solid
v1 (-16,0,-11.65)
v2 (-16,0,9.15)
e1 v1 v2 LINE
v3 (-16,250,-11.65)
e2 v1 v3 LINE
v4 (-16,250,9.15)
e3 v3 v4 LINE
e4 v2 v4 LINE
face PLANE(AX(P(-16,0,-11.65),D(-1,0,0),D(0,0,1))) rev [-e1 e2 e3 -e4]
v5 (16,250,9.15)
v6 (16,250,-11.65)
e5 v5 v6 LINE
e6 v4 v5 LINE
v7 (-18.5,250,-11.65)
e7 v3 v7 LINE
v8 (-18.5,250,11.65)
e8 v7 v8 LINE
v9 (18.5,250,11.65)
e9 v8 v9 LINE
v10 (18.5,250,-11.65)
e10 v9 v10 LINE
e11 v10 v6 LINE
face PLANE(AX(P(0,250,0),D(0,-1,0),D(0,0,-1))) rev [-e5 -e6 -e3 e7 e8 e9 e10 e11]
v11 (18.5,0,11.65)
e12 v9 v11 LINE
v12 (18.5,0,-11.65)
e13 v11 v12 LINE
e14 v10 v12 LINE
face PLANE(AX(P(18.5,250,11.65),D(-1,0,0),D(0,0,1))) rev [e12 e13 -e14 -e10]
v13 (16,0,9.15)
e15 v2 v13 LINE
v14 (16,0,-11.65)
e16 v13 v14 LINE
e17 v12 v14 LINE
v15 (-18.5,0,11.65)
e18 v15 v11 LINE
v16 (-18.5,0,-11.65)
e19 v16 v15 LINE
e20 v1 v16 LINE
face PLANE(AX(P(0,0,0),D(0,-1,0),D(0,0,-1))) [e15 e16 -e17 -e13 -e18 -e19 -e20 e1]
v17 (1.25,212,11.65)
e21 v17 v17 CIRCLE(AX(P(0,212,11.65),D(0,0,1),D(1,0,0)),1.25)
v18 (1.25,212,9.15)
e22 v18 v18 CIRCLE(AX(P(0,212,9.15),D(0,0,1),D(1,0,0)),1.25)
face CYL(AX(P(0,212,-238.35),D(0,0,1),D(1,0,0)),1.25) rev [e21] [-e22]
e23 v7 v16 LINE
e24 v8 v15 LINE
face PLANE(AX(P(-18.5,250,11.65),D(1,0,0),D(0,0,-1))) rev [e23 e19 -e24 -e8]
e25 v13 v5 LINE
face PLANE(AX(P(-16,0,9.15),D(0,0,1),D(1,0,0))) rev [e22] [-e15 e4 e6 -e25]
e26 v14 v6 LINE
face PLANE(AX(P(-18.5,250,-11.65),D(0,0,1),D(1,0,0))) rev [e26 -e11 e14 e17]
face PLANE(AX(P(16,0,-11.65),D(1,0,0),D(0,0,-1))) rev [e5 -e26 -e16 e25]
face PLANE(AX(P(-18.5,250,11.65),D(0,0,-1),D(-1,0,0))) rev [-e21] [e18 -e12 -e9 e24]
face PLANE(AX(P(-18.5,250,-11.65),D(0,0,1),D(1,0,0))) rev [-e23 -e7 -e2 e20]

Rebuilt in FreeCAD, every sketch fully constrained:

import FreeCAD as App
import Part
import Sketcher
Q = App.Units.Quantity


def add_polygon(sketch, points):
    """Adds a closed chain of lines whose ends are joined by coincident constraints."""
    first, n = sketch.GeometryCount, len(points)
    for a, b in zip(points, points[1:] + points[:1]):
        sketch.addGeometry(Part.LineSegment(App.Vector(*a, 0), App.Vector(*b, 0)), False)
    for i in range(n):
        sketch.addConstraint(Sketcher.Constraint("Coincident", first + i, 2, first + (i + 1) % n, 1))

doc = App.newDocument("Part")
params = doc.addObject("Spreadsheet::Sheet", "Params")
for row, (alias, value) in enumerate([
    ("sketch1_width", "37 mm"),
    ("sketch1_height", "23.3 mm"),
    ("pad1_length", "250 mm"),
    ("sketch2_width", "32 mm"),
    ("sketch2_height", "20.8 mm"),
    ("pocket1_length", "250 mm"),
    ("sketch3_diameter", "2.5 mm"),
    ("pocket2_length", "250 mm"),
], start=1):
    params.set(f"A{row}", alias)
    params.set(f"B{row}", "=" + value)
    params.setAlias(f"B{row}", alias)

body = doc.addObject("PartDesign::Body", "Body")

# Sketch on XZ plane
sketch1 = body.newObject("Sketcher::SketchObject", "Sketch")
sketch1.AttachmentSupport = (doc.getObject("XZ_Plane"), [""])
sketch1.MapMode = "FlatFace"
add_polygon(sketch1, [(-18, -12), (-18, 12), (18, 12), (18, -12)])  # lines 0-3
sketch1.addConstraint([
    Sketcher.Constraint("Vertical", 0),
    Sketcher.Constraint("Horizontal", 1),
    Sketcher.Constraint("Vertical", 2),
    Sketcher.Constraint("Horizontal", 3),
    Sketcher.Constraint("Symmetric", 0, 2, 2, 2, -1, 1),
    Sketcher.Constraint("DistanceX", 1, 1, 1, 2, Q("37 mm")),
    Sketcher.Constraint("DistanceY", 0, 1, 0, 2, Q("23.3 mm")),
])
sketch1.setExpression("Constraints[9]", "Params.sketch1_width")
sketch1.setExpression("Constraints[10]", "Params.sketch1_height")
pad1 = body.newObject("PartDesign::Pad", "Pad")
pad1.Profile = sketch1
pad1.setExpression("Length", "Params.pad1_length")
pad1.Reversed = True

# Sketch on XZ plane
sketch2 = body.newObject("Sketcher::SketchObject", "Sketch001")
sketch2.AttachmentSupport = (doc.getObject("XZ_Plane"), [""])
sketch2.MapMode = "FlatFace"
sketch2.AttachmentOffset = App.Placement(App.Vector(0, 0, -250), App.Rotation())
add_polygon(sketch2, [(-16, -12), (-16, 9), (16, 9), (16, -12)])  # lines 0-3
sketch2.addConstraint([
    Sketcher.Constraint("Vertical", 0),
    Sketcher.Constraint("Horizontal", 1),
    Sketcher.Constraint("Vertical", 2),
    Sketcher.Constraint("Horizontal", 3),
    Sketcher.Constraint("DistanceX", 1, 1, 1, 2, Q("32 mm")),
    Sketcher.Constraint("DistanceY", 0, 1, 0, 2, Q("20.8 mm")),
    Sketcher.Constraint("DistanceX", 0, 2, -1, 1, Q("16 mm")),
    Sketcher.Constraint("DistanceY", -1, 1, 0, 2, Q("9.15 mm")),
])
sketch2.setExpression("Constraints[8]", "Params.sketch2_width")
sketch2.setExpression("Constraints[9]", "Params.sketch2_height")
pocket1 = body.newObject("PartDesign::Pocket", "Pocket")
pocket1.Profile = sketch2
pocket1.setExpression("Length", "Params.pocket1_length")
pocket1.Reversed = True

# Sketch on XY plane
sketch3 = body.newObject("Sketcher::SketchObject", "Sketch002")
sketch3.AttachmentSupport = (doc.getObject("XY_Plane"), [""])
sketch3.MapMode = "FlatFace"
sketch3.AttachmentOffset = App.Placement(App.Vector(0, 0, 11.65), App.Rotation())
sketch3.addGeometry(Part.Circle(App.Vector(0, 212, 0), App.Vector(0, 0, 1), 1.2), False)
sketch3.addConstraint([
    Sketcher.Constraint("PointOnObject", 0, 3, -2),
    Sketcher.Constraint("Diameter", 0, Q("2.5 mm")),
    Sketcher.Constraint("DistanceY", -1, 1, 0, 3, Q("212 mm")),
])
sketch3.setExpression("Constraints[1]", "Params.sketch3_diameter")
pocket2 = body.newObject("PartDesign::Pocket", "Pocket001")
pocket2.Profile = sketch3
pocket2.setExpression("Length", "Params.pocket2_length")

doc.recompute()
